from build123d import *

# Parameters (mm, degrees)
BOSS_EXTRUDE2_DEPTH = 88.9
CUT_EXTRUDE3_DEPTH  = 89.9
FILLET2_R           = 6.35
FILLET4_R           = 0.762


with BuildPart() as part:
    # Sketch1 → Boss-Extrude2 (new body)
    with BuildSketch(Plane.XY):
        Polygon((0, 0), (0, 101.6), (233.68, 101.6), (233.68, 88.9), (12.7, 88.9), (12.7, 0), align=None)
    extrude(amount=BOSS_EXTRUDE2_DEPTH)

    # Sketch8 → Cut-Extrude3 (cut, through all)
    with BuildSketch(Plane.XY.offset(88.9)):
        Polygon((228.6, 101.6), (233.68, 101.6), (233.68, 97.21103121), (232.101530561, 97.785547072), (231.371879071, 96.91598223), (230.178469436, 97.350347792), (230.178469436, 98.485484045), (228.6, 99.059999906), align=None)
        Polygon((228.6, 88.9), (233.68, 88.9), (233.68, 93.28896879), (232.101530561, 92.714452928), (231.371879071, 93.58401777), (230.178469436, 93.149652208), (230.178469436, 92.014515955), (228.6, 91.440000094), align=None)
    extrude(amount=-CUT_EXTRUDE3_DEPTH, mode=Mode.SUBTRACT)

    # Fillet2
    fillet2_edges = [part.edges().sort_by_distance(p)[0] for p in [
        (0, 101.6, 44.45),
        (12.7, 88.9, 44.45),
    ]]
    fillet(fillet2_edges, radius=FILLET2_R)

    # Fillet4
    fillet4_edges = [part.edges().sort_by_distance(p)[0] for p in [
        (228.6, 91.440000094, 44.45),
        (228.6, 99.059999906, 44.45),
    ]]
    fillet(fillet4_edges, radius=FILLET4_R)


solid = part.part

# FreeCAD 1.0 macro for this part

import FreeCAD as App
import Part
import Sketcher
from FreeCAD import Vector
Q = App.Units.Quantity


def edges_at(feature, points):
    """Names of the edges that pass closest to the given points."""
    edges = feature.Shape.Edges
    near = lambda p: min(range(len(edges)), key=lambda i: edges[i].distToShape(Part.Vertex(*p))[0])
    return sorted({f"Edge{near(p) + 1}" for p in points})


def add_polygon(sketch, points):
    """Adds a closed chain of lines whose ends are joined by coincident constraints."""
    first, n = sketch.GeometryCount, len(points)
    for a, b in zip(points, points[1:] + points[:1]):
        sketch.addGeometry(Part.LineSegment(App.Vector(*a, 0), App.Vector(*b, 0)), False)
    for i in range(n):
        sketch.addConstraint(Sketcher.Constraint("Coincident", first + i, 2, first + (i + 1) % n, 1))

doc = App.newDocument("Part")
body = doc.addObject("PartDesign::Body", "Body")

sketch1 = body.newObject("Sketcher::SketchObject", "Sketch")
sketch1.AttachmentSupport = (doc.getObject("XY_Plane"), [""])
sketch1.MapMode = "FlatFace"
add_polygon(sketch1, [(0, 101.6), (0, 0), (12.7, 0), (12.7, 88.9), (233.68, 88.9), (233.68, 101.6)])
sketch1.addConstraint(Sketcher.Constraint("Vertical", 0))
sketch1.addConstraint(Sketcher.Constraint("Horizontal", 1))
sketch1.addConstraint(Sketcher.Constraint("Vertical", 2))
sketch1.addConstraint(Sketcher.Constraint("Horizontal", 3))
sketch1.addConstraint(Sketcher.Constraint("Vertical", 4))
sketch1.addConstraint(Sketcher.Constraint("Horizontal", 5))
sketch1.addConstraint(Sketcher.Constraint("Coincident", 0, 2, -1, 1))
sketch1.addConstraint(Sketcher.Constraint("Equal", 1, 4))
sketch1.addConstraint(Sketcher.Constraint("DistanceY", 0, 2, 0, 1, Q("4 in")))
sketch1.addConstraint(Sketcher.Constraint("DistanceX", 1, 1, 1, 2, Q("0.5 in")))
sketch1.addConstraint(Sketcher.Constraint("DistanceX", 3, 1, 3, 2, Q("8.7 in")))
pad1 = body.newObject("PartDesign::Pad", "Pad")
pad1.Profile = sketch1
pad1.Length = Q("3.5 in")

sketch2 = body.newObject("Sketcher::SketchObject", "Sketch001")
sketch2.AttachmentSupport = (doc.getObject("XY_Plane"), [""])
sketch2.MapMode = "FlatFace"
sketch2.AttachmentOffset = App.Placement(Vector(0, 0, 3.5 * 25.4), App.Rotation())
add_polygon(sketch2, [(233.68, 101.6), (228.6, 101.6), (228.6, 99.06), (230.178469, 98.485484), (230.178469, 97.350348), (231.371879, 96.915982), (232.101531, 97.785547), (233.68, 97.211031)])
add_polygon(sketch2, [(228.6, 88.9), (233.68, 88.9), (233.68, 93.288969), (232.101531, 92.714453), (231.371879, 93.584018), (230.178469, 93.149652), (230.178469, 92.014516), (228.6, 91.44)])
sketch2.addConstraint(Sketcher.Constraint("Horizontal", 0))
sketch2.addConstraint(Sketcher.Constraint("Vertical", 1))
sketch2.addConstraint(Sketcher.Constraint("Vertical", 3))
sketch2.addConstraint(Sketcher.Constraint("Vertical", 7))
sketch2.addConstraint(Sketcher.Constraint("Horizontal", 8))
sketch2.addConstraint(Sketcher.Constraint("Vertical", 9))
sketch2.addConstraint(Sketcher.Constraint("Vertical", 13))
sketch2.addConstraint(Sketcher.Constraint("Vertical", 15))
sketch2.addConstraint(Sketcher.Constraint("Parallel", 2, 4))
sketch2.addConstraint(Sketcher.Constraint("Parallel", 4, 6))
sketch2.addConstraint(Sketcher.Constraint("Parallel", 10, 12))
sketch2.addConstraint(Sketcher.Constraint("Parallel", 12, 14))
sketch2.addConstraint(Sketcher.Constraint("Vertical", 7, 2, 8, 2))
sketch2.addConstraint(Sketcher.Constraint("Vertical", 5, 2, 10, 2))
sketch2.addConstraint(Sketcher.Constraint("Vertical", 4, 2, 11, 2))
sketch2.addConstraint(Sketcher.Constraint("Vertical", 3, 2, 12, 2))
sketch2.addConstraint(Sketcher.Constraint("Vertical", 1, 2, 14, 2))
sketch2.addConstraint(Sketcher.Constraint("Equal", 7, 9))
sketch2.addConstraint(Sketcher.Constraint("Equal", 3, 13))
sketch2.addConstraint(Sketcher.Constraint("Equal", 1, 15))
sketch2.addConstraint(Sketcher.Constraint("Equal", 2, 6))
sketch2.addConstraint(Sketcher.Constraint("Equal", 6, 10))
sketch2.addConstraint(Sketcher.Constraint("DistanceX", 0, 2, 0, 1, Q("0.2 in")))
sketch2.addConstraint(Sketcher.Constraint("DistanceY", 1, 2, 1, 1, Q("0.1 in")))
sketch2.addConstraint(Sketcher.Constraint("DistanceX", -1, 1, 0, 2, Q("9 in")))
sketch2.addConstraint(Sketcher.Constraint("DistanceY", -1, 1, 0, 2, Q("4 in")))
sketch2.addConstraint(Sketcher.Constraint("Angle", 2, Q("-19.999999 deg")))
sketch2.addConstraint(Sketcher.Constraint("Angle", 5, Q("50.000002 deg")))
sketch2.addConstraint(Sketcher.Constraint("DistanceY", -1, 1, 8, 2, Q("3.5 in")))
sketch2.addConstraint(Sketcher.Constraint("Distance", 4, Q("0.05 in")))
sketch2.addConstraint(Sketcher.Constraint("DistanceY", 7, 1, 7, 2, 4.388969))
sketch2.addConstraint(Sketcher.Constraint("DistanceY", 4, 2, 2, 2, 1.569502))
pocket1 = body.newObject("PartDesign::Pocket", "Pocket")
pocket1.Profile = sketch2
pocket1.Type = "ThroughAll"
doc.recompute()

fillet = body.newObject("PartDesign::Fillet", "Fillet")
fillet.Base = (pocket1, edges_at(pocket1, [(0, 101.6, 44.45), (12.7, 88.9, 44.45)]))
fillet.Radius = Q("0.25 in")
doc.recompute()

fillet2 = body.newObject("PartDesign::Fillet", "Fillet001")
fillet2.Base = (fillet, edges_at(fillet, [(228.6, 91.44, 44.45), (228.6, 99.06, 44.45)]))
fillet2.Radius = Q("0.03 in")

doc.recompute()
